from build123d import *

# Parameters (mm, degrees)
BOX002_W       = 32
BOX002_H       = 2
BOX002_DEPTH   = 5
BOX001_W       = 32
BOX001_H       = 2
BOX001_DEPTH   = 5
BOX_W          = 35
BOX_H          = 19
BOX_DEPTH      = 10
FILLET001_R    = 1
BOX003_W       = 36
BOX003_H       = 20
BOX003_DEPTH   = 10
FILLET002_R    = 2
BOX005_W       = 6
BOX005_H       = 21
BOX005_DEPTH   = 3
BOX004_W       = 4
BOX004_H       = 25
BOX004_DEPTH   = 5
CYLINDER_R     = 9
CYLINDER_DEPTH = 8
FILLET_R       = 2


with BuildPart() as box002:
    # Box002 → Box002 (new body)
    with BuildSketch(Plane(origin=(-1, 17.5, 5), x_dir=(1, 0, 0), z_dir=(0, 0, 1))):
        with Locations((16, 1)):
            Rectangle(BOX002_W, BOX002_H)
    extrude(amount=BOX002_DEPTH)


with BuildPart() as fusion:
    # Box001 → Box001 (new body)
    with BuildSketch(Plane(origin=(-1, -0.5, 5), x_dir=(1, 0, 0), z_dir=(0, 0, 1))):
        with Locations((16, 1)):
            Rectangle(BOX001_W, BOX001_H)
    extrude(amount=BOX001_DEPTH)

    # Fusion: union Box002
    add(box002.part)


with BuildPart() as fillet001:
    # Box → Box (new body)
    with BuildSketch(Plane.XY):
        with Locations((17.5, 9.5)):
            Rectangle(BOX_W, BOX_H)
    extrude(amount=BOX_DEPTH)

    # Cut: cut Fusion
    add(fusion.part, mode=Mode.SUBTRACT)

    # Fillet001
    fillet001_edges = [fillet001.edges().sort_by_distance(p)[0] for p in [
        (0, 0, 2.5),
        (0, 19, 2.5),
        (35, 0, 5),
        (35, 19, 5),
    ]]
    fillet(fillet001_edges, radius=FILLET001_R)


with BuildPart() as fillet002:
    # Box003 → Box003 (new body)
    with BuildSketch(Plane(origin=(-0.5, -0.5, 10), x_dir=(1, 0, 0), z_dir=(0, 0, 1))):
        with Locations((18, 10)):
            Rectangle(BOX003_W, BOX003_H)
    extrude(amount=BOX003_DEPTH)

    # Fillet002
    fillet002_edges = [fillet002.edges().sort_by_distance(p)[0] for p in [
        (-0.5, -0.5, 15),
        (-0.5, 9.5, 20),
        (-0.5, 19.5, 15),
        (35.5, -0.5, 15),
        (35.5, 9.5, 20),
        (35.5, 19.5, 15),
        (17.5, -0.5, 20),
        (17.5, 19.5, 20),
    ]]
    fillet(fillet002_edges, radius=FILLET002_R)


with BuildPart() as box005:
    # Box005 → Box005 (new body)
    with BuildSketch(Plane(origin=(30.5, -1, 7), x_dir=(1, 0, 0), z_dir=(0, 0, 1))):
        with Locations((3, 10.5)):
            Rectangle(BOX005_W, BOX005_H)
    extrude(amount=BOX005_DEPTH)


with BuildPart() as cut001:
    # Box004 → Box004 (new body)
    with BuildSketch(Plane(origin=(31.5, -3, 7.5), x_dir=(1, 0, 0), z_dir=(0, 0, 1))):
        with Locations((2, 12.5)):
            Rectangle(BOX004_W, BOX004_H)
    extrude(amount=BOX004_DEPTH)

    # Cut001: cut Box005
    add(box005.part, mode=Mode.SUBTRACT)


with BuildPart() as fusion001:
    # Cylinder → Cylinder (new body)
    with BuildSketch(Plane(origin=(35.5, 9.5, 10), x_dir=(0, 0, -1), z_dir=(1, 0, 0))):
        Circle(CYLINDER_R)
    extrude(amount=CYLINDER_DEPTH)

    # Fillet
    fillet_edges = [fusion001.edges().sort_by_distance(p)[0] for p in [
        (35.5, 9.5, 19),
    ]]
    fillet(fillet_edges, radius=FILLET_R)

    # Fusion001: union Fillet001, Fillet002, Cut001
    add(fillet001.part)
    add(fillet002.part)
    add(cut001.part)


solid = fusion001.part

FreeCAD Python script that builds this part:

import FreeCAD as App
import Part
import Sketcher

V = App.Vector
Q = App.Units.Quantity


def edges_at(feature, points):
    """Names of the edges that pass closest to the given points."""
    edges = feature.Shape.Edges
    near = lambda p: min(range(len(edges)), key=lambda i: edges[i].distToShape(Part.Vertex(*p))[0])
    return sorted({f"Edge{near(p) + 1}" for p in points})


def add_polygon(sketch, points):
    """Adds a closed chain of lines whose ends are joined by coincident constraints."""
    first, n = sketch.GeometryCount, len(points)
    for a, b in zip(points, points[1:] + points[:1]):
        sketch.addGeometry(Part.LineSegment(App.Vector(*a, 0), App.Vector(*b, 0)), False)
    for i in range(n):
        sketch.addConstraint(Sketcher.Constraint("Coincident", first + i, 2, first + (i + 1) % n, 1))

doc = App.newDocument("Part")
body = doc.addObject("PartDesign::Body", "Body")

sketch1 = body.newObject("Sketcher::SketchObject", "Sketch")
sketch1.AttachmentSupport = (doc.getObject("XY_Plane"), [""])
sketch1.MapMode = "FlatFace"
sketch1.AttachmentOffset = App.Placement(V(0, 0, 5), App.Rotation())
add_polygon(sketch1, [(-1, 19.5), (-1, 17.5), (31, 17.5), (31, 19.5)])
sketch1.addConstraint([
    Sketcher.Constraint("Vertical", 0),
    Sketcher.Constraint("Horizontal", 1),
    Sketcher.Constraint("Vertical", 2),
    Sketcher.Constraint("Horizontal", 3),
    Sketcher.Constraint("DistanceX", 1, 1, 1, 2, Q("32 mm")),
    Sketcher.Constraint("DistanceY", 0, 2, 0, 1, Q("2 mm")),
    Sketcher.Constraint("DistanceX", 0, 2, -1, 1, Q("1 mm")),
    Sketcher.Constraint("DistanceY", -1, 1, 0, 2, Q("17.5 mm")),
])
pad1 = body.newObject("PartDesign::Pad", "Pad")
pad1.Profile = sketch1
pad1.Length = 5
body2 = doc.addObject("PartDesign::Body", "Body001")
body2.AllowCompound = True

sketch2 = body2.newObject("Sketcher::SketchObject", "Sketch001")
sketch2.AttachmentSupport = (doc.getObject("XY_Plane001"), [""])
sketch2.MapMode = "FlatFace"
sketch2.AttachmentOffset = App.Placement(V(0, 0, 5), App.Rotation())
add_polygon(sketch2, [(-1, 1.5), (-1, -0.5), (31, -0.5), (31, 1.5)])
sketch2.addConstraint([
    Sketcher.Constraint("Vertical", 0),
    Sketcher.Constraint("Horizontal", 1),
    Sketcher.Constraint("Vertical", 2),
    Sketcher.Constraint("Horizontal", 3),
    Sketcher.Constraint("DistanceX", 1, 1, 1, 2, Q("32 mm")),
    Sketcher.Constraint("DistanceY", 0, 2, 0, 1, Q("2 mm")),
    Sketcher.Constraint("DistanceX", 0, 2, -1, 1, Q("1 mm")),
    Sketcher.Constraint("DistanceY", 0, 2, -1, 1, Q("0.5 mm")),
])
pad2 = body2.newObject("PartDesign::Pad", "Pad001")
pad2.Profile = sketch2
pad2.Length = 5
doc.recompute()

boolean = body2.newObject("PartDesign::Boolean", "Boolean")
boolean.Type = "Fuse"
boolean.addObjects([body])
body3 = doc.addObject("PartDesign::Body", "Body002")

sketch3 = body3.newObject("Sketcher::SketchObject", "Sketch002")
sketch3.AttachmentSupport = (doc.getObject("XY_Plane002"), [""])
sketch3.MapMode = "FlatFace"
add_polygon(sketch3, [(0, 19), (0, 0), (35, 0), (35, 19)])
sketch3.addConstraint([
    Sketcher.Constraint("Vertical", 0),
    Sketcher.Constraint("Horizontal", 1),
    Sketcher.Constraint("Vertical", 2),
    Sketcher.Constraint("Horizontal", 3),
    Sketcher.Constraint("Coincident", 0, 2, -1, 1),
    Sketcher.Constraint("DistanceX", 1, 1, 1, 2, Q("35 mm")),
    Sketcher.Constraint("DistanceY", 0, 2, 0, 1, Q("19 mm")),
])
pad3 = body3.newObject("PartDesign::Pad", "Pad002")
pad3.Profile = sketch3
pad3.Length = 10
doc.recompute()

boolean2 = body3.newObject("PartDesign::Boolean", "Boolean001")
boolean2.Type = "Cut"
boolean2.addObjects([body2])
doc.recompute()

fillet = body3.newObject("PartDesign::Fillet", "Fillet")
fillet.Base = (boolean2, edges_at(boolean2, [
    (0, 0, 2.5),
    (0, 19, 2.5),
    (35, 0, 5),
    (35, 19, 5),
]))
fillet.Radius = 1
body4 = doc.addObject("PartDesign::Body", "Body003")

sketch4 = body4.newObject("Sketcher::SketchObject", "Sketch003")
sketch4.AttachmentSupport = (doc.getObject("XY_Plane003"), [""])
sketch4.MapMode = "FlatFace"
sketch4.AttachmentOffset = App.Placement(V(0, 0, 10), App.Rotation())
add_polygon(sketch4, [(0, 20), (0, 0), (36, 0), (36, 20)])
sketch4.addConstraint([
    Sketcher.Constraint("Vertical", 0),
    Sketcher.Constraint("Horizontal", 1),
    Sketcher.Constraint("Vertical", 2),
    Sketcher.Constraint("Horizontal", 3),
    Sketcher.Constraint("DistanceX", 1, 1, 1, 2, Q("36 mm")),
    Sketcher.Constraint("DistanceY", 0, 2, 0, 1, Q("20 mm")),
    Sketcher.Constraint("DistanceX", 0, 2, -1, 1, Q("0.5 mm")),
    Sketcher.Constraint("DistanceY", 0, 2, -1, 1, Q("0.5 mm")),
])
pad4 = body4.newObject("PartDesign::Pad", "Pad003")
pad4.Profile = sketch4
pad4.Length = 10
doc.recompute()

fillet2 = body4.newObject("PartDesign::Fillet", "Fillet001")
fillet2.Base = (pad4, edges_at(pad4, [
    (-0.5, -0.5, 15),
    (-0.5, 9.5, 20),
    (-0.5, 19.5, 15),
    (35.5, -0.5, 15),
    (35.5, 9.5, 20),
    (35.5, 19.5, 15),
    (17.5, -0.5, 20),
    (17.5, 19.5, 20),
]))
fillet2.Radius = 2
body5 = doc.addObject("PartDesign::Body", "Body004")

sketch5 = body5.newObject("Sketcher::SketchObject", "Sketch004")
sketch5.AttachmentSupport = (doc.getObject("XY_Plane004"), [""])
sketch5.MapMode = "FlatFace"
sketch5.AttachmentOffset = App.Placement(V(0, 0, 7), App.Rotation())
add_polygon(sketch5, [(30, 20), (30, -1), (36, -1), (36, 20)])
sketch5.addConstraint([
    Sketcher.Constraint("Vertical", 0),
    Sketcher.Constraint("Horizontal", 1),
    Sketcher.Constraint("Vertical", 2),
    Sketcher.Constraint("Horizontal", 3),
    Sketcher.Constraint("DistanceX", 1, 1, 1, 2, Q("6 mm")),
    Sketcher.Constraint("DistanceY", 0, 2, 0, 1, Q("21 mm")),
    Sketcher.Constraint("DistanceY", 0, 2, -1, 1, Q("1 mm")),
    Sketcher.Constraint("DistanceX", -1, 1, 0, 2, Q("30.5 mm")),
])
pad5 = body5.newObject("PartDesign::Pad", "Pad004")
pad5.Profile = sketch5
pad5.Length = 3
body6 = doc.addObject("PartDesign::Body", "Body005")

sketch6 = body6.newObject("Sketcher::SketchObject", "Sketch005")
sketch6.AttachmentSupport = (doc.getObject("XY_Plane005"), [""])
sketch6.MapMode = "FlatFace"
sketch6.AttachmentOffset = App.Placement(V(0, 0, 7.5), App.Rotation())
add_polygon(sketch6, [(31.5, 22), (31.5, -3), (35.5, -3), (35.5, 22)])
sketch6.addConstraint([
    Sketcher.Constraint("Vertical", 0),
    Sketcher.Constraint("Horizontal", 1),
    Sketcher.Constraint("Vertical", 2),
    Sketcher.Constraint("Horizontal", 3),
    Sketcher.Constraint("DistanceX", 1, 1, 1, 2, Q("4 mm")),
    Sketcher.Constraint("DistanceY", 0, 2, 0, 1, Q("25 mm")),
    Sketcher.Constraint("DistanceY", 0, 2, -1, 1, Q("3 mm")),
    Sketcher.Constraint("DistanceX", -1, 1, 0, 2, Q("31.5 mm")),
])
pad6 = body6.newObject("PartDesign::Pad", "Pad005")
pad6.Profile = sketch6
pad6.Length = 5
doc.recompute()

boolean3 = body6.newObject("PartDesign::Boolean", "Boolean002")
boolean3.Type = "Cut"
boolean3.addObjects([body5])
body7 = doc.addObject("PartDesign::Body", "Body006")
body7.AllowCompound = True

sketch7 = body7.newObject("Sketcher::SketchObject", "Sketch006")
sketch7.AttachmentSupport = (doc.getObject("YZ_Plane006"), [""])
sketch7.MapMode = "FlatFace"
sketch7.AttachmentOffset = App.Placement(V(0, 0, 35.5), App.Rotation())
sketch7.addGeometry(Part.Circle(V(10, 10, 0), V(0, 0, 1), 9), False)
sketch7.addConstraint([
    Sketcher.Constraint("Diameter", 0, Q("18 mm")),
    Sketcher.Constraint("DistanceY", -1, 1, 0, 3, Q("10 mm")),
    Sketcher.Constraint("DistanceX", -1, 1, 0, 3, Q("9.5 mm")),
])
pad7 = body7.newObject("PartDesign::Pad", "Pad006")
pad7.Profile = sketch7
pad7.Length = 8
doc.recompute()

fillet3 = body7.newObject("PartDesign::Fillet", "Fillet002")
fillet3.Base = (pad7, edges_at(pad7, [(35.5, 9.5, 19)]))
fillet3.Radius = 2
doc.recompute()

boolean4 = body7.newObject("PartDesign::Boolean", "Boolean003")
boolean4.Type = "Fuse"
boolean4.addObjects([body3])
doc.recompute()

boolean5 = body7.newObject("PartDesign::Boolean", "Boolean004")
boolean5.Type = "Fuse"
boolean5.addObjects([body4])
doc.recompute()

boolean6 = body7.newObject("PartDesign::Boolean", "Boolean005")
boolean6.Type = "Fuse"
boolean6.addObjects([body6])

doc.recompute()
